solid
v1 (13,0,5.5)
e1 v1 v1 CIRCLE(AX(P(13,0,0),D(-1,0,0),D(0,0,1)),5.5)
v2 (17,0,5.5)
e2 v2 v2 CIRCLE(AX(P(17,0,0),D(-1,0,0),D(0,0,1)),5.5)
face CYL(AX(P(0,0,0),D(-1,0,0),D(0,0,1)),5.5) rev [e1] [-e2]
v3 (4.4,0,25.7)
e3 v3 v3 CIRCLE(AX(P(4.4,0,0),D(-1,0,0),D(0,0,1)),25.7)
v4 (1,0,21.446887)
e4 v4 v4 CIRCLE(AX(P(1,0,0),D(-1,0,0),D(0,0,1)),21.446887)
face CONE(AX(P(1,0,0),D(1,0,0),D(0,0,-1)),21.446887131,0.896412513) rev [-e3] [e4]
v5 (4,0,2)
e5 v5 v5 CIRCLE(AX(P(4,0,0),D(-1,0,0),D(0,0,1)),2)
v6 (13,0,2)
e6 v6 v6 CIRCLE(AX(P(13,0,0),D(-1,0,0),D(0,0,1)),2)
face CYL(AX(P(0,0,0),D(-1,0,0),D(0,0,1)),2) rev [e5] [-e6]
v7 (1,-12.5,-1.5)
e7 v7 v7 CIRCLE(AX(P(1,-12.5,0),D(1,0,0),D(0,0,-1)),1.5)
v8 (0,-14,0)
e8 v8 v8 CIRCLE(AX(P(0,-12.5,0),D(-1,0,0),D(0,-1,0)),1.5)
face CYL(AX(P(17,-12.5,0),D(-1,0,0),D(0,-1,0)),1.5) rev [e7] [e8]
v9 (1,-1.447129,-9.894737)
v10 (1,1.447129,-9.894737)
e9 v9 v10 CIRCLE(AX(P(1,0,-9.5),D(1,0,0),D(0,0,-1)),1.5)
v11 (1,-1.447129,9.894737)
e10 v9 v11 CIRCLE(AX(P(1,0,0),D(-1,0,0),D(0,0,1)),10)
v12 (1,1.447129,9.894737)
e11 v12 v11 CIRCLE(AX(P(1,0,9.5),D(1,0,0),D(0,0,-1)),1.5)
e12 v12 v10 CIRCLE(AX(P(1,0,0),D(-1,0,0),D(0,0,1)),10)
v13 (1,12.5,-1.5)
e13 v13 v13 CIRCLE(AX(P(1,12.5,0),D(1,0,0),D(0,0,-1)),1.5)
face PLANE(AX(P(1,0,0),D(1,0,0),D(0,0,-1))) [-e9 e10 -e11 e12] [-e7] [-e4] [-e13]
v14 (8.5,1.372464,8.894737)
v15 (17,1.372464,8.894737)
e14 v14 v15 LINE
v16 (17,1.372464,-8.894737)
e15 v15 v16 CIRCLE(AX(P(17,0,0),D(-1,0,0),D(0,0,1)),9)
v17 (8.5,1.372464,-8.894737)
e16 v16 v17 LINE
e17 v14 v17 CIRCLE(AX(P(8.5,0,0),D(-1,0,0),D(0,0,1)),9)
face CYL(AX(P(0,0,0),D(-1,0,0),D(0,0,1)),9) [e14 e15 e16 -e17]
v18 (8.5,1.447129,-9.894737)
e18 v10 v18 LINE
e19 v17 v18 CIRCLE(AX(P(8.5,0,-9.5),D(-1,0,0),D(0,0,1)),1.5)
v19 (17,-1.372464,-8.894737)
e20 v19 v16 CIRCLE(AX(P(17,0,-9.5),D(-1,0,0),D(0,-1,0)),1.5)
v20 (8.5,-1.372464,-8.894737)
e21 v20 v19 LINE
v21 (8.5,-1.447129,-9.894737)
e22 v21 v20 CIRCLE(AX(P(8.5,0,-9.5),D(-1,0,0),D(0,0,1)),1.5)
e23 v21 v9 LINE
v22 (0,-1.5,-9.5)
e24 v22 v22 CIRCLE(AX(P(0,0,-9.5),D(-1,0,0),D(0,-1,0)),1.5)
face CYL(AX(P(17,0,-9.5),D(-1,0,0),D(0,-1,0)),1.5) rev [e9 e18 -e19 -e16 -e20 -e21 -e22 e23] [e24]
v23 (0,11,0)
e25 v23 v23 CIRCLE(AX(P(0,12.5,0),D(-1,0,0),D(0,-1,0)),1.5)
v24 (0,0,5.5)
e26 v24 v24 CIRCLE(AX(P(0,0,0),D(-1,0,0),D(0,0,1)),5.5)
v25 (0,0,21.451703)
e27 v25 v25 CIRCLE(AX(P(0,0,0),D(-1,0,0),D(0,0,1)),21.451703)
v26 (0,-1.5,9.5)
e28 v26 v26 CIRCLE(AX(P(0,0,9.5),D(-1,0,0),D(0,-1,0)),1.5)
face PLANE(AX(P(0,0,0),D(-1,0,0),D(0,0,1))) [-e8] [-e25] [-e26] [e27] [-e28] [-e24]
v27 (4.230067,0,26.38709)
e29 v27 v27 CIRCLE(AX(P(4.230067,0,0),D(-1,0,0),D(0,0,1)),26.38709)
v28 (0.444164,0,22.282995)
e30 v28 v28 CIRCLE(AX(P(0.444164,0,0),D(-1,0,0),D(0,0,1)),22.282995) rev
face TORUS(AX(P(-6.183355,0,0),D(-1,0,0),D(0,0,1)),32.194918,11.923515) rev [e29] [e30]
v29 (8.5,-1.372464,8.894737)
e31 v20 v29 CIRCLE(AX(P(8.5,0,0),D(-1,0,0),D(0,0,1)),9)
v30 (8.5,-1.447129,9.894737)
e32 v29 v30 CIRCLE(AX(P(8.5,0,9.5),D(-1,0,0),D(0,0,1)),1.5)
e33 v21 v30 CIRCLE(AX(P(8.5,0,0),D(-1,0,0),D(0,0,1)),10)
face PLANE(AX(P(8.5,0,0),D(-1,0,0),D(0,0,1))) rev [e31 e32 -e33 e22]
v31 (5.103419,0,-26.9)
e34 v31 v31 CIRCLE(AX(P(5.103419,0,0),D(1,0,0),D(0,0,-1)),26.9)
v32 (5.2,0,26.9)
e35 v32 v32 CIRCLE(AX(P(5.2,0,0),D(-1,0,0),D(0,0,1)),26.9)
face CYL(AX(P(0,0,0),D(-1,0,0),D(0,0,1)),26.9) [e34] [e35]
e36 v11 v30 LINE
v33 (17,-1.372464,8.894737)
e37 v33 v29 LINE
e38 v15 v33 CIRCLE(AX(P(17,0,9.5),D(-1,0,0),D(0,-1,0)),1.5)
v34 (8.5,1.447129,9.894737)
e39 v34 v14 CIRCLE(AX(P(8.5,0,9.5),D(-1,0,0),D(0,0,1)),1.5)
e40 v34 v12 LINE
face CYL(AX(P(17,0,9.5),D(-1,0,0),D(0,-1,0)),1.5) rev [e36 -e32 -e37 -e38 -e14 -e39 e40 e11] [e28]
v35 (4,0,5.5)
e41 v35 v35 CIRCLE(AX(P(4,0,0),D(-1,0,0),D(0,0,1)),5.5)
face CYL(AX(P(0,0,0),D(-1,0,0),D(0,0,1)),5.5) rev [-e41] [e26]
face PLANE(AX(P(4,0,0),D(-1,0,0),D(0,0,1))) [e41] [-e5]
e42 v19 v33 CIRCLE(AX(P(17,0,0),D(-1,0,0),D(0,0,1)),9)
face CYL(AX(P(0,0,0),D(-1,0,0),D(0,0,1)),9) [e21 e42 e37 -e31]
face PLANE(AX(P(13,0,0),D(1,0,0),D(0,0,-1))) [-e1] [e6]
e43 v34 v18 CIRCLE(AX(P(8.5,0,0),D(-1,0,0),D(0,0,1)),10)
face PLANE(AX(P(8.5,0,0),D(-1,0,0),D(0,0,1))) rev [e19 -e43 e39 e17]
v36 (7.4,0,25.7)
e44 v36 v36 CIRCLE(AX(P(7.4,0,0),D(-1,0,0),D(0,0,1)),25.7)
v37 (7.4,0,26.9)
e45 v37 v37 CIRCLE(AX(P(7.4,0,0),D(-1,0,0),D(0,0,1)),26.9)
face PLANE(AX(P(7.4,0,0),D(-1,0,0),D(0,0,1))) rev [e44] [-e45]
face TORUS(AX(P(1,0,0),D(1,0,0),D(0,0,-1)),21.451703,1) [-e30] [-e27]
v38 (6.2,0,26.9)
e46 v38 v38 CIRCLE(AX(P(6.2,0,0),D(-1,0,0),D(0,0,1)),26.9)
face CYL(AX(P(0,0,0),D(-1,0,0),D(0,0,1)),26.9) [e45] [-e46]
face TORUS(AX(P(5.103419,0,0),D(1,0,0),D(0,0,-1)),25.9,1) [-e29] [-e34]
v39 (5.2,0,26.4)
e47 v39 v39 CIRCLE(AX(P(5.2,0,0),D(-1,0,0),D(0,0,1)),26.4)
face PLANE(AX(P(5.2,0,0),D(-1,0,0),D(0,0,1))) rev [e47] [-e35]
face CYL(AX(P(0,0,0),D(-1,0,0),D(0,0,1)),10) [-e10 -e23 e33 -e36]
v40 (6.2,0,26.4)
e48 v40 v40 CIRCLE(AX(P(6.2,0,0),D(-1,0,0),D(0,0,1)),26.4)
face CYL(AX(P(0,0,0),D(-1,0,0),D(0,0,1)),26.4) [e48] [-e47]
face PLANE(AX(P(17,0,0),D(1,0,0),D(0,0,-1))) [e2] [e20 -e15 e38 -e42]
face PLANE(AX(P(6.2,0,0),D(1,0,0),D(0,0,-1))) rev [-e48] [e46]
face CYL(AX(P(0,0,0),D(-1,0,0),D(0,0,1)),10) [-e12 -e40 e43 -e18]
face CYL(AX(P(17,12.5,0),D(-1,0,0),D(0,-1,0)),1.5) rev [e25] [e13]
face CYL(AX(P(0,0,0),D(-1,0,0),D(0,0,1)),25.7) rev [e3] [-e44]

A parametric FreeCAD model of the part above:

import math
import FreeCAD as App
import Part
import Sketcher
from FreeCAD import Vector
Q = App.Units.Quantity


def edges_at(feature, points):
    """Names of the edges that pass closest to the given points."""
    edges = feature.Shape.Edges
    near = lambda p: min(range(len(edges)), key=lambda i: edges[i].distToShape(Part.Vertex(*p))[0])
    return sorted({f"Edge{near(p) + 1}" for p in points})

doc = App.newDocument("Part")
body = doc.addObject("PartDesign::Body", "Body")

sketch1 = doc.addObject("Sketcher::SketchObject", "Sketch")
body.addObject(sketch1)
sketch1.AttachmentSupport = (doc.XY_Plane, [""])
sketch1.MapMode = "FlatFace"
sketch1.addGeometry(Part.LineSegment(Vector(4, 5.5, 0), Vector(4, 2, 0)), False)
sketch1.addGeometry(Part.LineSegment(Vector(4, 2, 0), Vector(13, 2, 0)), False)
sketch1.addGeometry(Part.LineSegment(Vector(13, 2, 0), Vector(13, 5.5, 0)), False)
sketch1.addGeometry(Part.LineSegment(Vector(13, 5.5, 0), Vector(17, 5.5, 0)), False)
sketch1.addGeometry(Part.LineSegment(Vector(17, 5.5, 0), Vector(17, 9, 0)), False)
sketch1.addGeometry(Part.LineSegment(Vector(17, 9, 0), Vector(8.5, 9, 0)), False)
sketch1.addGeometry(Part.LineSegment(Vector(8.5, 9, 0), Vector(8.5, 10, 0)), False)
sketch1.addGeometry(Part.LineSegment(Vector(8.5, 10, 0), Vector(1, 10, 0)), False)
sketch1.addGeometry(Part.LineSegment(Vector(1, 10, 0), Vector(1, 21.446887, 0)), False)
sketch1.addGeometry(Part.LineSegment(Vector(1, 21.446887, 0), Vector(4.4, 25.7, 0)), False)
sketch1.addGeometry(Part.LineSegment(Vector(4.4, 25.7, 0), Vector(7.4, 25.7, 0)), False)
sketch1.addGeometry(Part.LineSegment(Vector(7.4, 25.7, 0), Vector(7.4, 26.9, 0)), False)
sketch1.addGeometry(Part.LineSegment(Vector(7.4, 26.9, 0), Vector(6.2, 26.9, 0)), False)
sketch1.addGeometry(Part.LineSegment(Vector(6.2, 26.9, 0), Vector(6.2, 26.4, 0)), False)
sketch1.addGeometry(Part.LineSegment(Vector(6.2, 26.4, 0), Vector(5.2, 26.4, 0)), False)
sketch1.addGeometry(Part.LineSegment(Vector(5.2, 26.4, 0), Vector(5.2, 26.9, 0)), False)
sketch1.addGeometry(Part.LineSegment(Vector(5.2, 26.9, 0), Vector(4.5, 26.9, 0)), False)
sketch1.addGeometry(Part.ArcOfCircle(Part.Circle(Vector(-6.183355, 32.194918, 0), Vector(0, 0, 1), 11.923515), math.radians(-58.762625), math.radians(-26.364079)), False)
sketch1.addGeometry(Part.LineSegment(Vector(0, 22, 0), Vector(0, 5.5, 0)), False)
sketch1.addGeometry(Part.LineSegment(Vector(0, 5.5, 0), Vector(4, 5.5, 0)), False)
sketch1.addConstraint(Sketcher.Constraint("Coincident", 0, 2, 1, 1))
sketch1.addConstraint(Sketcher.Constraint("Coincident", 1, 2, 2, 1))
sketch1.addConstraint(Sketcher.Constraint("Coincident", 2, 2, 3, 1))
sketch1.addConstraint(Sketcher.Constraint("Coincident", 3, 2, 4, 1))
sketch1.addConstraint(Sketcher.Constraint("Coincident", 4, 2, 5, 1))
sketch1.addConstraint(Sketcher.Constraint("Coincident", 5, 2, 6, 1))
sketch1.addConstraint(Sketcher.Constraint("Coincident", 6, 2, 7, 1))
sketch1.addConstraint(Sketcher.Constraint("Coincident", 7, 2, 8, 1))
sketch1.addConstraint(Sketcher.Constraint("Coincident", 8, 2, 9, 1))
sketch1.addConstraint(Sketcher.Constraint("Coincident", 9, 2, 10, 1))
sketch1.addConstraint(Sketcher.Constraint("Coincident", 10, 2, 11, 1))
sketch1.addConstraint(Sketcher.Constraint("Coincident", 11, 2, 12, 1))
sketch1.addConstraint(Sketcher.Constraint("Coincident", 12, 2, 13, 1))
sketch1.addConstraint(Sketcher.Constraint("Coincident", 13, 2, 14, 1))
sketch1.addConstraint(Sketcher.Constraint("Coincident", 14, 2, 15, 1))
sketch1.addConstraint(Sketcher.Constraint("Coincident", 15, 2, 16, 1))
sketch1.addConstraint(Sketcher.Constraint("Coincident", 16, 2, 17, 2))
sketch1.addConstraint(Sketcher.Constraint("Coincident", 17, 1, 18, 1))
sketch1.addConstraint(Sketcher.Constraint("Coincident", 18, 2, 19, 1))
sketch1.addConstraint(Sketcher.Constraint("Coincident", 19, 2, 0, 1))
sketch1.addConstraint(Sketcher.Constraint("Vertical", 0))
sketch1.addConstraint(Sketcher.Constraint("Horizontal", 1))
sketch1.addConstraint(Sketcher.Constraint("Vertical", 2))
sketch1.addConstraint(Sketcher.Constraint("Horizontal", 3))
sketch1.addConstraint(Sketcher.Constraint("Vertical", 4))
sketch1.addConstraint(Sketcher.Constraint("Horizontal", 5))
sketch1.addConstraint(Sketcher.Constraint("Vertical", 6))
sketch1.addConstraint(Sketcher.Constraint("Horizontal", 7))
sketch1.addConstraint(Sketcher.Constraint("Vertical", 8))
sketch1.addConstraint(Sketcher.Constraint("Horizontal", 10))
sketch1.addConstraint(Sketcher.Constraint("Vertical", 11))
sketch1.addConstraint(Sketcher.Constraint("Horizontal", 12))
sketch1.addConstraint(Sketcher.Constraint("Vertical", 13))
sketch1.addConstraint(Sketcher.Constraint("Horizontal", 14))
sketch1.addConstraint(Sketcher.Constraint("Vertical", 15))
sketch1.addConstraint(Sketcher.Constraint("Horizontal", 16))
sketch1.addConstraint(Sketcher.Constraint("Vertical", 18))
sketch1.addConstraint(Sketcher.Constraint("Horizontal", 19))
sketch1.addConstraint(Sketcher.Constraint("PointOnObject", 17, 1, -2))
sketch1.addConstraint(Sketcher.Constraint("Horizontal", 12, 2, 15, 2))
sketch1.addConstraint(Sketcher.Constraint("Horizontal", 3, 2, 18, 2))
sketch1.addConstraint(Sketcher.Constraint("Equal", 3, 19))
sketch1.addConstraint(Sketcher.Constraint("Equal", 2, 4))
sketch1.addConstraint(Sketcher.Constraint("Equal", 14, 6))
sketch1.addConstraint(Sketcher.Constraint("Equal", 12, 11))
sketch1.addConstraint(Sketcher.Constraint("DistanceX", 1, 1, 1, 2, Q("9 mm")))
sketch1.addConstraint(Sketcher.Constraint("DistanceX", 3, 1, 3, 2, Q("4 mm")))
sketch1.addConstraint(Sketcher.Constraint("DistanceX", 10, 1, 10, 2, Q("3 mm")))
sketch1.addConstraint(Sketcher.Constraint("DistanceX", 14, 2, 14, 1, Q("1 mm")))
sketch1.addConstraint(Sketcher.Constraint("DistanceX", 5, 2, 5, 1, Q("8.5 mm")))
sketch1.addConstraint(Sketcher.Constraint("DistanceX", 7, 2, 7, 1, Q("7.5 mm")))
sketch1.addConstraint(Sketcher.Constraint("DistanceX", 12, 2, 12, 1, Q("1.2 mm")))
sketch1.addConstraint(Sketcher.Constraint("DistanceX", 16, 2, 16, 1, Q("0.7 mm")))
sketch1.addConstraint(Sketcher.Constraint("DistanceY", 0, 2, 0, 1, Q("3.5 mm")))
sketch1.addConstraint(Sketcher.Constraint("DistanceY", 13, 2, 13, 1, Q("0.5 mm")))
sketch1.addConstraint(Sketcher.Constraint("DistanceY", 18, 2, 18, 1, Q("16.5 mm")))
sketch1.addConstraint(Sketcher.Constraint("DistanceY", -1, 1, 0, 2, Q("2 mm")))
sketch1.addConstraint(Sketcher.Constraint("DistanceX", -1, 1, 9, 2, Q("4.4 mm")))
sketch1.addConstraint(Sketcher.Constraint("DistanceY", -1, 1, 9, 2, Q("25.7 mm")))
sketch1.addConstraint(Sketcher.Constraint("Radius", 17, Q("11.923515 mm")))
sketch1.addConstraint(Sketcher.Constraint("DistanceY", 8, 1, 8, 2, Q("11.446887 mm")))
revolution = doc.addObject("PartDesign::Revolution", "Revolution")
body.addObject(revolution)
revolution.Profile = sketch1
revolution.ReferenceAxis = (sketch1, ["H_Axis"])
revolution.Angle = 360
doc.recompute()

fillet = doc.addObject("PartDesign::Fillet", "Fillet")
body.addObject(fillet)
fillet.Base = (revolution, edges_at(revolution, [(4.5, 0, -26.9), (0, 0, -22)]))
fillet.Radius = 1

sketch2 = doc.addObject("Sketcher::SketchObject", "Sketch001")
body.addObject(sketch2)
sketch2.AttachmentSupport = (doc.YZ_Plane, [""])
sketch2.MapMode = "FlatFace"
sketch2.addGeometry(Part.Circle(Vector(0, -9.5, 0), Vector(0, 0, 1), 1.5), False)
sketch2.addGeometry(Part.Circle(Vector(12.5, 0, 0), Vector(0, 0, 1), 1.5), False)
sketch2.addGeometry(Part.Circle(Vector(0, 9.5, 0), Vector(0, 0, 1), 1.5), False)
sketch2.addGeometry(Part.Circle(Vector(-12.5, 0, 0), Vector(0, 0, 1), 1.5), False)
sketch2.addConstraint(Sketcher.Constraint("Equal", 0, 1))
sketch2.addConstraint(Sketcher.Constraint("Equal", 1, 2))
sketch2.addConstraint(Sketcher.Constraint("Equal", 2, 3))
sketch2.addConstraint(Sketcher.Constraint("Symmetric", 0, 3, 2, 3, -1, 1))
sketch2.addConstraint(Sketcher.Constraint("Symmetric", 1, 3, 3, 3, -1, 1))
sketch2.addConstraint(Sketcher.Constraint("PointOnObject", 0, 3, -2))
sketch2.addConstraint(Sketcher.Constraint("PointOnObject", 1, 3, -1))
sketch2.addConstraint(Sketcher.Constraint("Diameter", 0, Q("3 mm")))
sketch2.addConstraint(Sketcher.Constraint("DistanceY", 0, 3, 2, 3, Q("19 mm")))
sketch2.addConstraint(Sketcher.Constraint("DistanceX", 3, 3, 1, 3, Q("25 mm")))
pocket1 = doc.addObject("PartDesign::Pocket", "Pocket")
body.addObject(pocket1)
pocket1.Profile = sketch2
pocket1.Type = "ThroughAll"
pocket1.Reversed = True

doc.recompute()
